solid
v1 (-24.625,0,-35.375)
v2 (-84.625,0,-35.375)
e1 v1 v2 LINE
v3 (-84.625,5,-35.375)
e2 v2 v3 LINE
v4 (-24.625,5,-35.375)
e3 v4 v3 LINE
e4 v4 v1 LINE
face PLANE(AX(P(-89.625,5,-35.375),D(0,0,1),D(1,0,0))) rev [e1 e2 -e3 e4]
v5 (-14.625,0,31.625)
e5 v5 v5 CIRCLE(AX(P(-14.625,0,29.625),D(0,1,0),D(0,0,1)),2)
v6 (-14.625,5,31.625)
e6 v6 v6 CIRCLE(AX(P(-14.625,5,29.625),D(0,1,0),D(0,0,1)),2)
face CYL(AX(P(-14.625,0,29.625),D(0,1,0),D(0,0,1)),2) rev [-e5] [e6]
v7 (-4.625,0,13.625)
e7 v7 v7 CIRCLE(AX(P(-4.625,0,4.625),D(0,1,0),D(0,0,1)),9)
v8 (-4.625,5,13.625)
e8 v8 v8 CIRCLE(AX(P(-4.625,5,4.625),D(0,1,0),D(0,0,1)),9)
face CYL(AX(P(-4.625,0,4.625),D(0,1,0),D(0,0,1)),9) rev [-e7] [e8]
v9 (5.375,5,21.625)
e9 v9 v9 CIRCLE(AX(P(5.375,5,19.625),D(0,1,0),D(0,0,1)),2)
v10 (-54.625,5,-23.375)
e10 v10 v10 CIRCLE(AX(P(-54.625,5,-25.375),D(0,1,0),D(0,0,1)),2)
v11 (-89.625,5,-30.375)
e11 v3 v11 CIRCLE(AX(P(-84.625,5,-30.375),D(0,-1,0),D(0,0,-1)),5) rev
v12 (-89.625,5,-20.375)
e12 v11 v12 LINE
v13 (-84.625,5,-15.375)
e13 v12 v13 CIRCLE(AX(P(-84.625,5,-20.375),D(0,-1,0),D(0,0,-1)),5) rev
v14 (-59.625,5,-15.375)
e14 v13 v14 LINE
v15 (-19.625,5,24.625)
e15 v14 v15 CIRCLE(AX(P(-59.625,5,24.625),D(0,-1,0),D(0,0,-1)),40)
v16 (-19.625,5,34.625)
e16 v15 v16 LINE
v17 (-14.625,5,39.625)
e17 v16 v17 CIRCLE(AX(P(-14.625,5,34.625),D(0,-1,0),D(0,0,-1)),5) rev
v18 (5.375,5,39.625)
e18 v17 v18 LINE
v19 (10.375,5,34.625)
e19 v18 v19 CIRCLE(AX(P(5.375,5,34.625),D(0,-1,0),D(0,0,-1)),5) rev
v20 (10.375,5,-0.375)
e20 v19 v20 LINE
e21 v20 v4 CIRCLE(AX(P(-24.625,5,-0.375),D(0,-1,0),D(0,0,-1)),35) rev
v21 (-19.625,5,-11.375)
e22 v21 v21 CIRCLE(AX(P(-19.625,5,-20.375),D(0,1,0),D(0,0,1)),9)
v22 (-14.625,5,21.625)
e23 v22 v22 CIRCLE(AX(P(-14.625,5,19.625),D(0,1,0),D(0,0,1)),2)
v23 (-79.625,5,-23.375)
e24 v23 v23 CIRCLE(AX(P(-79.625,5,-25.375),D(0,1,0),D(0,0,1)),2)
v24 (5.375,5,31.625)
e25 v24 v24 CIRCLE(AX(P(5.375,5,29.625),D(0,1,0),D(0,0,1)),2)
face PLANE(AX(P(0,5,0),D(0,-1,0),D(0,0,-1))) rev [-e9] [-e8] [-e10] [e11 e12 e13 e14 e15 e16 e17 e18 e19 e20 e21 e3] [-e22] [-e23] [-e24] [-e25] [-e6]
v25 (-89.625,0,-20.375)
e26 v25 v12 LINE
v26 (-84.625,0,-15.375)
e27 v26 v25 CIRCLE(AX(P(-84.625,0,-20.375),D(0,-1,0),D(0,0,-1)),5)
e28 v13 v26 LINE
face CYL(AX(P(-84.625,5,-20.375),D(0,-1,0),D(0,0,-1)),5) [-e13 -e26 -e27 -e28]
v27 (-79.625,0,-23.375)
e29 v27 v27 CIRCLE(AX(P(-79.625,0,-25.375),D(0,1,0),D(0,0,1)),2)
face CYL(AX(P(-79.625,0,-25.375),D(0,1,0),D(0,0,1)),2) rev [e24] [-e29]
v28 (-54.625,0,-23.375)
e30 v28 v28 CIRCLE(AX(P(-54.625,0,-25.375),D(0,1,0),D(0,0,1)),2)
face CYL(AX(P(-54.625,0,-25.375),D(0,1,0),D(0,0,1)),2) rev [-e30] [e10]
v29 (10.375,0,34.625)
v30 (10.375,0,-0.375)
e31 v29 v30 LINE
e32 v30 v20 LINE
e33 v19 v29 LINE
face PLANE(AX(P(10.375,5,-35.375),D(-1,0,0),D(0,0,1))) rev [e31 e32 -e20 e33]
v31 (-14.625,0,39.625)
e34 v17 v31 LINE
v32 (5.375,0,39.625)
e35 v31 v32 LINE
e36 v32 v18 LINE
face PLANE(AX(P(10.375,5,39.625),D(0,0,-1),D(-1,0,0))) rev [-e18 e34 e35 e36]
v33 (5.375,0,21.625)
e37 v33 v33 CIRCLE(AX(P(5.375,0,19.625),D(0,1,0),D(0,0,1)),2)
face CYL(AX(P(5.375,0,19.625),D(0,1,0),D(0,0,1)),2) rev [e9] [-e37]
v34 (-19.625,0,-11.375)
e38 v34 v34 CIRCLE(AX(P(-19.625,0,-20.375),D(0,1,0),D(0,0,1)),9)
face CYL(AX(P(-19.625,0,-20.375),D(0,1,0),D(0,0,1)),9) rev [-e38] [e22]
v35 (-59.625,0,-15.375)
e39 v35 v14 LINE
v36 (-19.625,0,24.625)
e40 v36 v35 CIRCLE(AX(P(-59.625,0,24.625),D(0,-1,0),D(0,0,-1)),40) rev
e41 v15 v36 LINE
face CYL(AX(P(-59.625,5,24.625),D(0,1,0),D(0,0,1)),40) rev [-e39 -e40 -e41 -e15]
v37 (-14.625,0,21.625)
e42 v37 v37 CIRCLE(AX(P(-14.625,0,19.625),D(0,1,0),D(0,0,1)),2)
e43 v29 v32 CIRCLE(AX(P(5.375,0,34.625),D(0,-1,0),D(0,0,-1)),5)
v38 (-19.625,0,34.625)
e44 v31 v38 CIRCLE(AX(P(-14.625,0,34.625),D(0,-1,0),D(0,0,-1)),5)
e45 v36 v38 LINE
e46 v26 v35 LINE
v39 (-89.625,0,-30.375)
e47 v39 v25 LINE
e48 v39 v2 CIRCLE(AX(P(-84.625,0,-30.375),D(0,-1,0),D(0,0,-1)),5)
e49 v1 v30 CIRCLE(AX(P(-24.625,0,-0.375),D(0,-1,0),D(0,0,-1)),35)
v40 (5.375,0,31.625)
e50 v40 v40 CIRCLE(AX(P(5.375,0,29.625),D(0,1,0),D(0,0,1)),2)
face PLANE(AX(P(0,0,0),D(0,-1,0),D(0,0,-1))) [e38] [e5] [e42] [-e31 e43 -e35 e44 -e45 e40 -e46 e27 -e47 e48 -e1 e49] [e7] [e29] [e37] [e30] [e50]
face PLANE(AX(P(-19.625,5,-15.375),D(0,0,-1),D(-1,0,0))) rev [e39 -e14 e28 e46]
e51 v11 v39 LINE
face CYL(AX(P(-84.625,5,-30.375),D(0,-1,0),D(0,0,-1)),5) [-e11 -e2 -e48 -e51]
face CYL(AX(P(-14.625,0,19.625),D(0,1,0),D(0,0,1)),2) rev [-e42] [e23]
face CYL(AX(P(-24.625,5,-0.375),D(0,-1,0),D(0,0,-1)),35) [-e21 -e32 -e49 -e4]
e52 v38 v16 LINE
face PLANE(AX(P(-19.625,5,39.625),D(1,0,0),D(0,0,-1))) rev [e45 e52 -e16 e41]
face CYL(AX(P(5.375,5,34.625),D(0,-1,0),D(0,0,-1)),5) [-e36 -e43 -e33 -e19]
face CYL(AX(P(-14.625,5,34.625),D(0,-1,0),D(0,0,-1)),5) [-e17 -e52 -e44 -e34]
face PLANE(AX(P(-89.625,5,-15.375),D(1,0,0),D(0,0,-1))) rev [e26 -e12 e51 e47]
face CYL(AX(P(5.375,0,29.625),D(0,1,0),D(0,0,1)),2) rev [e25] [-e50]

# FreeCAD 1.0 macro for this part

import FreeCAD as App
import Part
import Sketcher

V = App.Vector


def edges_at(feature, points):
    """Names of the edges that pass closest to the given points."""
    edges = feature.Shape.Edges
    near = lambda p: min(range(len(edges)), key=lambda i: edges[i].distToShape(Part.Vertex(*p))[0])
    return sorted({f"Edge{near(p) + 1}" for p in points})


def add_polygon(sketch, points):
    """Adds a closed chain of lines whose ends are joined by coincident constraints."""
    first, n = sketch.GeometryCount, len(points)
    for a, b in zip(points, points[1:] + points[:1]):
        sketch.addGeometry(Part.LineSegment(App.Vector(*a, 0), App.Vector(*b, 0)), False)
    for i in range(n):
        sketch.addConstraint(Sketcher.Constraint("Coincident", first + i, 2, first + (i + 1) % n, 1))

doc = App.newDocument("Part")
body = doc.addObject("PartDesign::Body", "Body")

sketch1 = doc.addObject("Sketcher::SketchObject", "Sketch")
body.addObject(sketch1)
sketch1.AttachmentSupport = (doc.XZ_Plane, [""])
sketch1.MapMode = "FlatFace"
add_polygon(sketch1, [(10, -35), (-90, -35), (-90, -15), (-20, -15), (-20, 40), (10, 40)])
sketch1.addConstraint([
    Sketcher.Constraint("Horizontal", 0),
    Sketcher.Constraint("Vertical", 1),
    Sketcher.Constraint("Horizontal", 2),
    Sketcher.Constraint("Vertical", 3),
    Sketcher.Constraint("Horizontal", 4),
    Sketcher.Constraint("Vertical", 5),
    Sketcher.Constraint("DistanceX", 0, 2, 0, 1, 100.0),
    Sketcher.Constraint("DistanceX", 2, 1, 2, 2, 70.0),
    Sketcher.Constraint("DistanceY", 1, 1, 1, 2, 20.0),
    Sketcher.Constraint("DistanceY", 3, 1, 3, 2, 55.0),
    Sketcher.Constraint("DistanceX", 0, 2, -1, 1, 89.625),
    Sketcher.Constraint("DistanceY", 0, 2, -1, 1, 35.375),
])
pad1 = doc.addObject("PartDesign::Pad", "Pad")
body.addObject(pad1)
pad1.Profile = sketch1
pad1.Length = 5
pad1.Reversed = True
doc.recompute()

fillet = doc.addObject("PartDesign::Fillet", "Fillet")
body.addObject(fillet)
fillet.Base = (pad1, edges_at(pad1, [(-19.625, 2.5, -15.375)]))
fillet.Radius = 40
doc.recompute()

fillet2 = doc.addObject("PartDesign::Fillet", "Fillet001")
body.addObject(fillet2)
fillet2.Base = (fillet, edges_at(fillet, [
    (-89.625, 2.5, -35.375),
    (10.375, 2.5, 39.625),
    (-19.625, 2.5, 39.625),
    (-89.625, 2.5, -15.375),
]))
fillet2.Radius = 5

sketch2 = doc.addObject("Sketcher::SketchObject", "Sketch001")
body.addObject(sketch2)
sketch2.AttachmentSupport = (doc.XZ_Plane, [""])
sketch2.MapMode = "FlatFace"
sketch2.AttachmentOffset = App.Placement(V(0, 0, -5), App.Rotation())
sketch2.addGeometry([
    Part.Circle(V(-14.6, 29.6, 0), V(0, 0, 1), 2),
    Part.Circle(V(5.4, 29.6, 0), V(0, 0, 1), 2),
    Part.Circle(V(5.4, 19.6, 0), V(0, 0, 1), 2),
    Part.Circle(V(-14.6, 19.6, 0), V(0, 0, 1), 2),
], False)
sketch2.addConstraint([
    Sketcher.Constraint("Equal", 0, 1),
    Sketcher.Constraint("Equal", 1, 2),
    Sketcher.Constraint("Equal", 2, 3),
    Sketcher.Constraint("Horizontal", 0, 3, 1, 3),
    Sketcher.Constraint("Horizontal", 2, 3, 3, 3),
    Sketcher.Constraint("Vertical", 1, 3, 2, 3),
    Sketcher.Constraint("Vertical", 0, 3, 3, 3),
    Sketcher.Constraint("Diameter", 0, 4.0),
    Sketcher.Constraint("DistanceX", 0, 3, 1, 3, 20.0),
    Sketcher.Constraint("DistanceY", 2, 3, 1, 3, 10.0),
    Sketcher.Constraint("DistanceX", 0, 3, -1, 1, 14.625),
    Sketcher.Constraint("DistanceY", -1, 1, 0, 3, 29.625),
])
pocket1 = doc.addObject("PartDesign::Pocket", "Pocket")
body.addObject(pocket1)
pocket1.Profile = sketch2
pocket1.Length = 5
pocket1.Reversed = True
doc.recompute()

fillet3 = doc.addObject("PartDesign::Fillet", "Fillet002")
body.addObject(fillet3)
fillet3.Base = (pocket1, edges_at(pocket1, [(10.375, 2.5, -35.375)]))
fillet3.Radius = 35

sketch3 = doc.addObject("Sketcher::SketchObject", "Sketch002")
body.addObject(sketch3)
sketch3.AttachmentSupport = (doc.XZ_Plane, [""])
sketch3.MapMode = "FlatFace"
sketch3.AttachmentOffset = App.Placement(V(0, 0, -5), App.Rotation())
sketch3.addGeometry([
    Part.Circle(V(-20, -20, 0), V(0, 0, 1), 9),
    Part.Circle(V(-5, 5, 0), V(0, 0, 1), 9),
], False)
sketch3.addConstraint([
    Sketcher.Constraint("Equal", 0, 1),
    Sketcher.Constraint("Diameter", 0, 18.0),
    Sketcher.Constraint("DistanceX", 0, 3, 1, 3, 15.0),
    Sketcher.Constraint("DistanceY", 0, 3, 1, 3, 25.0),
    Sketcher.Constraint("DistanceX", 0, 3, -1, 1, 19.625),
    Sketcher.Constraint("DistanceY", 0, 3, -1, 1, 20.375),
])
pocket2 = doc.addObject("PartDesign::Pocket", "Pocket001")
body.addObject(pocket2)
pocket2.Profile = sketch3
pocket2.Type = "ThroughAll"
pocket2.Reversed = True

sketch4 = doc.addObject("Sketcher::SketchObject", "Sketch003")
body.addObject(sketch4)
sketch4.AttachmentSupport = (doc.XZ_Plane, [""])
sketch4.MapMode = "FlatFace"
sketch4.AttachmentOffset = App.Placement(V(0, 0, -5), App.Rotation())
sketch4.addGeometry([
    Part.Circle(V(-79.6, -25.4, 0), V(0, 0, 1), 2),
    Part.Circle(V(-54.6, -25.4, 0), V(0, 0, 1), 2),
], False)
sketch4.addConstraint([
    Sketcher.Constraint("Equal", 0, 1),
    Sketcher.Constraint("Horizontal", 0, 3, 1, 3),
    Sketcher.Constraint("Diameter", 0, 4.0),
    Sketcher.Constraint("DistanceX", 0, 3, 1, 3, 25.0),
    Sketcher.Constraint("DistanceX", 0, 3, -1, 1, 79.625),
    Sketcher.Constraint("DistanceY", 0, 3, -1, 1, 25.375),
])
pocket3 = doc.addObject("PartDesign::Pocket", "Pocket002")
body.addObject(pocket3)
pocket3.Profile = sketch4
pocket3.Type = "ThroughAll"
pocket3.Reversed = True

doc.recompute()
